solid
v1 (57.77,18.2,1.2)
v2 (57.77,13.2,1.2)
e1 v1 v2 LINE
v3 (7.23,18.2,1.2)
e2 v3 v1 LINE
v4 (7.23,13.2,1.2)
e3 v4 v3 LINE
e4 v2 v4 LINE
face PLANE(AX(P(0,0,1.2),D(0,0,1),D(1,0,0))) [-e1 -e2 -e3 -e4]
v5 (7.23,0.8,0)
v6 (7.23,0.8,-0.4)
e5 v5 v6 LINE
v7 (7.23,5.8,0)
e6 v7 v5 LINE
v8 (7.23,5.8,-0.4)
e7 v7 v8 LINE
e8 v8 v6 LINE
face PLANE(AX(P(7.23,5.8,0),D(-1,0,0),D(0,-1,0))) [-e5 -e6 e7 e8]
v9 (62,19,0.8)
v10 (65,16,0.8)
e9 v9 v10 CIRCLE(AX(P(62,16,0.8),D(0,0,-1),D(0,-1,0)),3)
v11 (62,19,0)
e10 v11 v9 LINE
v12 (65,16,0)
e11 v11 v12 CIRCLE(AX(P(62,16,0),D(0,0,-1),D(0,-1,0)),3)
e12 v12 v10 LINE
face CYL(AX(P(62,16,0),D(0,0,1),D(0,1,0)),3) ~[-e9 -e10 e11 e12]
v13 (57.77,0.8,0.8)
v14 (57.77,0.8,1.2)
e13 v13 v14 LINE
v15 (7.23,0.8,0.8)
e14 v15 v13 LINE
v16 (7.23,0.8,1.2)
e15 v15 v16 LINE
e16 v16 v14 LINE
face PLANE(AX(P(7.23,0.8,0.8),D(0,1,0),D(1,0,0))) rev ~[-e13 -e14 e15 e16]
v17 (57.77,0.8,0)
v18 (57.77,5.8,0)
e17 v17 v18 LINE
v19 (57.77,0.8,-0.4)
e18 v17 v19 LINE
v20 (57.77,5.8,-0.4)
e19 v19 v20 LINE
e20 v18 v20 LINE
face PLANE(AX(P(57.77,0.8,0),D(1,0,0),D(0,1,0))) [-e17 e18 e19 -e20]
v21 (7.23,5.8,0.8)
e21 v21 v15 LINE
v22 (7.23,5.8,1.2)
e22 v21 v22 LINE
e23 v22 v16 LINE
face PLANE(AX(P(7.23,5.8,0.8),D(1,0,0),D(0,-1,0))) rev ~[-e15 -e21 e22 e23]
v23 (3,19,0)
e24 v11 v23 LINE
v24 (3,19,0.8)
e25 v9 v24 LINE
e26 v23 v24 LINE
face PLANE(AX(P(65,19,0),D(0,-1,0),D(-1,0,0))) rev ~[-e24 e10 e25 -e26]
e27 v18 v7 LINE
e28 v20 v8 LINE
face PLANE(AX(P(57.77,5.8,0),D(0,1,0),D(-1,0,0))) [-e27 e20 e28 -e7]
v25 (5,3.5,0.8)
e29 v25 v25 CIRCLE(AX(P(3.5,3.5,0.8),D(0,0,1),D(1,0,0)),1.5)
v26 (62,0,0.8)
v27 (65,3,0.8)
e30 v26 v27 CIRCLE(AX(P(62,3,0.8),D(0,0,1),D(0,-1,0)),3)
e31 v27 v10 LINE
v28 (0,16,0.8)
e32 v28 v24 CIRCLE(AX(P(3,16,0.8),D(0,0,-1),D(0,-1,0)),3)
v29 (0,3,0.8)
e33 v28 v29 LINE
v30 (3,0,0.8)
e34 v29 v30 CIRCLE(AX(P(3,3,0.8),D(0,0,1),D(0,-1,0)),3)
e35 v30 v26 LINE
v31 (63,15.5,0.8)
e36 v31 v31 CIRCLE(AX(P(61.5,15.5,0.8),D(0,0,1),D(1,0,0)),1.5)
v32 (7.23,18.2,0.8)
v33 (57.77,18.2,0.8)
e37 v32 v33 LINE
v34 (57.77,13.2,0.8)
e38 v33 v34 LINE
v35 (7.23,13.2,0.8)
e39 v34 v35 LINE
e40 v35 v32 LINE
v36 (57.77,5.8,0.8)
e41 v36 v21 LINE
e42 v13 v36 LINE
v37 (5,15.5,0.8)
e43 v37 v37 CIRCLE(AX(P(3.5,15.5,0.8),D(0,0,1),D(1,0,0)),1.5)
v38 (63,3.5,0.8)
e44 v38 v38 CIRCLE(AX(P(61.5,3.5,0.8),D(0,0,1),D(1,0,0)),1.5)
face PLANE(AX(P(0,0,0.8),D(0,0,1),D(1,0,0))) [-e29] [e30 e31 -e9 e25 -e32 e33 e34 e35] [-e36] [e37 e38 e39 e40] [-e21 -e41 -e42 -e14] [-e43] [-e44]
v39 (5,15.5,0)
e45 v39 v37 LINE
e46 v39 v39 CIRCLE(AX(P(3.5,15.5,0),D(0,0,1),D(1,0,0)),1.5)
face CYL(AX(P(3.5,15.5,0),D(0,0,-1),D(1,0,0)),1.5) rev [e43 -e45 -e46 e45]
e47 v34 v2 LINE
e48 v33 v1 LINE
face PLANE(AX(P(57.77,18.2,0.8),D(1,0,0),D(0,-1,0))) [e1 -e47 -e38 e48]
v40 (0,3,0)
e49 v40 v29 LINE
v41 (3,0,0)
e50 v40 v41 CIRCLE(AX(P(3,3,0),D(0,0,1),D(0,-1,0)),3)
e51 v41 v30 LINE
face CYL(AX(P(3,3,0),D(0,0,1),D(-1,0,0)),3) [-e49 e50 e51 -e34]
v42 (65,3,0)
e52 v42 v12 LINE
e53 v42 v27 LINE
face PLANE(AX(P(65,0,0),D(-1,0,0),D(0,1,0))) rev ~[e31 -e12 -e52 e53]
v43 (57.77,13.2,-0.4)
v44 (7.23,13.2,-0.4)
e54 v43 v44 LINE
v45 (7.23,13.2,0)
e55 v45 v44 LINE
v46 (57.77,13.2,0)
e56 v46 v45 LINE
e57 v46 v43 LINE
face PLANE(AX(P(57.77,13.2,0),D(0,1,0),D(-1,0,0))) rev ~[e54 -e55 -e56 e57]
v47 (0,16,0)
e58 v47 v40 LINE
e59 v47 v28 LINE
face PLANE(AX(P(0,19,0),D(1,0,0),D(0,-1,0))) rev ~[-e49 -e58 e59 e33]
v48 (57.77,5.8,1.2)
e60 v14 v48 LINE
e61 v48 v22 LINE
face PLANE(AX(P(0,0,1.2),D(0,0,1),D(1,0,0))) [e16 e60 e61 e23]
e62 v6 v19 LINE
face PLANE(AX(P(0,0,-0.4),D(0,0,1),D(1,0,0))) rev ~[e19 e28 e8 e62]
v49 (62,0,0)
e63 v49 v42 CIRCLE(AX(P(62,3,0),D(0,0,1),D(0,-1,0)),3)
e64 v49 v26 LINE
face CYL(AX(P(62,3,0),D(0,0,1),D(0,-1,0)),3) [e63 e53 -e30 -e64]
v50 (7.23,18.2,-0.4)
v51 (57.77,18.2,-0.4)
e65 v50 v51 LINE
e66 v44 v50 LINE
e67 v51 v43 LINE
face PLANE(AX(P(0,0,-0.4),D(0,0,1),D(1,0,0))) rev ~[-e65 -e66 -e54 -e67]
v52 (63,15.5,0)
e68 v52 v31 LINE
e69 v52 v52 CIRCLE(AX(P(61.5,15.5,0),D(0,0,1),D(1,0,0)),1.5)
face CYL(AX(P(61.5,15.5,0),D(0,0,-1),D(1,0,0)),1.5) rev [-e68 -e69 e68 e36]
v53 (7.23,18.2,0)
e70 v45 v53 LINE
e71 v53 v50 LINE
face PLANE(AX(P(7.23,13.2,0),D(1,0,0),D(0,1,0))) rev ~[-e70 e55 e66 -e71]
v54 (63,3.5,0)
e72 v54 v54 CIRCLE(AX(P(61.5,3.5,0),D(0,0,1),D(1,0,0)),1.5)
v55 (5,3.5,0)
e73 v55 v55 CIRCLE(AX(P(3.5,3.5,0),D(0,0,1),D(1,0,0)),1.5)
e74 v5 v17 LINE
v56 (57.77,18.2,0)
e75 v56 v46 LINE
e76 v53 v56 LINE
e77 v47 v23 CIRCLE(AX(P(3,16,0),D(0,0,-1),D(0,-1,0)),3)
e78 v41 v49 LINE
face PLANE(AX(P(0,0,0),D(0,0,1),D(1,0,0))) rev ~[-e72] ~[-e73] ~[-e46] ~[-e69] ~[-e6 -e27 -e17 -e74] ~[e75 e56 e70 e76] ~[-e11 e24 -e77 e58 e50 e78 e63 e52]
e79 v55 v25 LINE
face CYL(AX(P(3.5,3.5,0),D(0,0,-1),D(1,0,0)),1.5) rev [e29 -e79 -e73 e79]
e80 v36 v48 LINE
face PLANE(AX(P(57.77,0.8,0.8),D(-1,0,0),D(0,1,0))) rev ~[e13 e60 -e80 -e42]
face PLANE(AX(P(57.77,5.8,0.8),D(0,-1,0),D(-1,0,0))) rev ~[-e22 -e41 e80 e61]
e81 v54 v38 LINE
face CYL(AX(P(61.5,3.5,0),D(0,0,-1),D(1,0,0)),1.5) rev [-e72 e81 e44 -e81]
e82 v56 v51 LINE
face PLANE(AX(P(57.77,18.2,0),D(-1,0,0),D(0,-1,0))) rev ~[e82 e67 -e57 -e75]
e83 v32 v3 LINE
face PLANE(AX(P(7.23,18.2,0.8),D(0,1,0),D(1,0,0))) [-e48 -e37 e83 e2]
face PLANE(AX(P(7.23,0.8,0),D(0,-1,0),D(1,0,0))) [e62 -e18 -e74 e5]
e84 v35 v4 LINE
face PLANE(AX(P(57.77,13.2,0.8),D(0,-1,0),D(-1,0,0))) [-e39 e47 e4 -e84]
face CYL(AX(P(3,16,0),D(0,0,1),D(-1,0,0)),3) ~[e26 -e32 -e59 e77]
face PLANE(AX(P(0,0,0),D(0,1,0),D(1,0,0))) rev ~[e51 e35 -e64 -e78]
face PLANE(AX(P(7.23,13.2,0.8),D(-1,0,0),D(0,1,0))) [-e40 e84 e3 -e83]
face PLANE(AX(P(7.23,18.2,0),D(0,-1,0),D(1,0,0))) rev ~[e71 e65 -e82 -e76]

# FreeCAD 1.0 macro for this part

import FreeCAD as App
import Part
import Sketcher

V = App.Vector


def edges_at(feature, points):
    """Names of the edges that pass closest to the given points."""
    edges = feature.Shape.Edges
    near = lambda p: min(range(len(edges)), key=lambda i: edges[i].distToShape(Part.Vertex(*p))[0])
    return sorted({f"Edge{near(p) + 1}" for p in points})


def add_polygon(sketch, points):
    """Adds a closed chain of lines whose ends are joined by coincident constraints."""
    first, n = sketch.GeometryCount, len(points)
    for a, b in zip(points, points[1:] + points[:1]):
        sketch.addGeometry(Part.LineSegment(App.Vector(*a, 0), App.Vector(*b, 0)), False)
    for i in range(n):
        sketch.addConstraint(Sketcher.Constraint("Coincident", first + i, 2, first + (i + 1) % n, 1))

doc = App.newDocument("Part")
params = doc.addObject("Spreadsheet::Sheet", "Params")
for row, (alias, value) in enumerate([
    ("sketch1_diameter", "3 mm"),
    ("sketch1_width", "65 mm"),
    ("sketch1_height", "19 mm"),
    ("pad1_length", "0.8 mm"),
    ("fillet_radius", "3 mm"),
    ("sketch2_height", "5 mm"),
    ("sketch2_width", "50.54 mm"),
    ("pad2_length", "0.4 mm"),
    ("sketch3_height", "5 mm"),
    ("sketch3_width", "50.54 mm"),
    ("pad3_length", "0.4 mm"),
], start=1):
    params.set(f"A{row}", alias)
    params.set(f"B{row}", "=" + value)
    params.setAlias(f"B{row}", alias)

body = doc.addObject("PartDesign::Body", "Body")

# Sketch on XY plane
sketch1 = doc.addObject("Sketcher::SketchObject", "Sketch")
body.addObject(sketch1)
sketch1.AttachmentSupport = (doc.XY_Plane, [""])
sketch1.MapMode = "FlatFace"
add_polygon(sketch1, [(0, 19), (0, 0), (65, 0), (65, 19)])  # lines 0-3
sketch1.addGeometry(Part.Circle(V(3.5, 3.5, 0), V(0, 0, 1), 1.5), False)  # 4
sketch1.addGeometry(Part.Circle(V(61.5, 3.5, 0), V(0, 0, 1), 1.5), False)  # 5
sketch1.addGeometry(Part.Circle(V(3.5, 15.5, 0), V(0, 0, 1), 1.5), False)  # 6
sketch1.addGeometry(Part.Circle(V(61.5, 15.5, 0), V(0, 0, 1), 1.5), False)  # 7
sketch1.addConstraint(Sketcher.Constraint("Vertical", 0))
sketch1.addConstraint(Sketcher.Constraint("Horizontal", 1))
sketch1.addConstraint(Sketcher.Constraint("Vertical", 2))
sketch1.addConstraint(Sketcher.Constraint("Horizontal", 3))
sketch1.addConstraint(Sketcher.Constraint("Coincident", 0, 2, -1, 1))
sketch1.addConstraint(Sketcher.Constraint("Equal", 4, 5))
sketch1.addConstraint(Sketcher.Constraint("Equal", 5, 6))
sketch1.addConstraint(Sketcher.Constraint("Equal", 6, 7))
sketch1.addConstraint(Sketcher.Constraint("Horizontal", 4, 3, 5, 3))
sketch1.addConstraint(Sketcher.Constraint("Horizontal", 6, 3, 7, 3))
sketch1.addConstraint(Sketcher.Constraint("Vertical", 4, 3, 6, 3))
sketch1.addConstraint(Sketcher.Constraint("Vertical", 5, 3, 7, 3))
sketch1.addConstraint(Sketcher.Constraint("Diameter", 4, 3.0))
sketch1.addConstraint(Sketcher.Constraint("DistanceX", 1, 1, 1, 2, 65.0))
sketch1.addConstraint(Sketcher.Constraint("DistanceY", 0, 2, 0, 1, 19.0))
sketch1.addConstraint(Sketcher.Constraint("DistanceX", -1, 1, 4, 3, 3.5))
sketch1.addConstraint(Sketcher.Constraint("DistanceY", -1, 1, 4, 3, 3.5))
sketch1.addConstraint(Sketcher.Constraint("DistanceX", 5, 3, 1, 2, 3.5))
sketch1.addConstraint(Sketcher.Constraint("DistanceY", 7, 3, 2, 2, 3.5))
sketch1.setExpression("Constraints[16]", "Params.sketch1_diameter")
sketch1.setExpression("Constraints[17]", "Params.sketch1_width")
sketch1.setExpression("Constraints[18]", "Params.sketch1_height")
pad1 = doc.addObject("PartDesign::Pad", "Pad")
body.addObject(pad1)
pad1.Profile = sketch1
pad1.setExpression("Length", "Params.pad1_length")
doc.recompute()

fillet = doc.addObject("PartDesign::Fillet", "Fillet")
body.addObject(fillet)
fillet.Base = (pad1, edges_at(pad1, [
    (65, 19, 0.4),
    (0, 0, 0.4),
    (65, 0, 0.4),
    (0, 19, 0.4),
]))
fillet.setExpression("Radius", "Params.fillet_radius")

# Sketch on XY plane
sketch2 = doc.addObject("Sketcher::SketchObject", "Sketch001")
body.addObject(sketch2)
sketch2.AttachmentSupport = (doc.XY_Plane, [""])
sketch2.MapMode = "FlatFace"
sketch2.AttachmentOffset = App.Placement(V(0, 0, 0.8), App.Rotation())
add_polygon(sketch2, [(7, 13), (58, 13), (58, 18), (7, 18)])  # lines 0-3
add_polygon(sketch2, [(7, 6), (7, 1), (58, 1), (58, 6)])  # lines 4-7
sketch2.addConstraint(Sketcher.Constraint("Horizontal", 0))
sketch2.addConstraint(Sketcher.Constraint("Vertical", 1))
sketch2.addConstraint(Sketcher.Constraint("Horizontal", 2))
sketch2.addConstraint(Sketcher.Constraint("Vertical", 3))
sketch2.addConstraint(Sketcher.Constraint("Vertical", 4))
sketch2.addConstraint(Sketcher.Constraint("Horizontal", 5))
sketch2.addConstraint(Sketcher.Constraint("Vertical", 6))
sketch2.addConstraint(Sketcher.Constraint("Horizontal", 7))
sketch2.addConstraint(Sketcher.Constraint("Vertical", 3, 2, 4, 2))
sketch2.addConstraint(Sketcher.Constraint("Vertical", 1, 2, 5, 2))
sketch2.addConstraint(Sketcher.Constraint("Equal", 3, 4))
sketch2.addConstraint(Sketcher.Constraint("DistanceY", 1, 1, 1, 2, 5.0))
sketch2.addConstraint(Sketcher.Constraint("DistanceX", 0, 1, 0, 2, 50.54))
sketch2.addConstraint(Sketcher.Constraint("DistanceY", -1, 1, 4, 2, 0.8))
sketch2.addConstraint(Sketcher.Constraint("DistanceY", -1, 1, 0, 2, 13.2))
sketch2.addConstraint(Sketcher.Constraint("DistanceX", -1, 1, 0, 2, 57.77))
sketch2.setExpression("Constraints[19]", "Params.sketch2_height")
sketch2.setExpression("Constraints[20]", "Params.sketch2_width")
pad2 = doc.addObject("PartDesign::Pad", "Pad001")
body.addObject(pad2)
pad2.Profile = sketch2
pad2.setExpression("Length", "Params.pad2_length")

# Sketch on XY plane
sketch3 = doc.addObject("Sketcher::SketchObject", "Sketch002")
body.addObject(sketch3)
sketch3.AttachmentSupport = (doc.XY_Plane, [""])
sketch3.MapMode = "FlatFace"
add_polygon(sketch3, [(7, 13), (58, 13), (58, 18), (7, 18)])  # lines 0-3
add_polygon(sketch3, [(7, 6), (7, 1), (58, 1), (58, 6)])  # lines 4-7
sketch3.addConstraint(Sketcher.Constraint("Horizontal", 0))
sketch3.addConstraint(Sketcher.Constraint("Vertical", 1))
sketch3.addConstraint(Sketcher.Constraint("Horizontal", 2))
sketch3.addConstraint(Sketcher.Constraint("Vertical", 3))
sketch3.addConstraint(Sketcher.Constraint("Vertical", 4))
sketch3.addConstraint(Sketcher.Constraint("Horizontal", 5))
sketch3.addConstraint(Sketcher.Constraint("Vertical", 6))
sketch3.addConstraint(Sketcher.Constraint("Horizontal", 7))
sketch3.addConstraint(Sketcher.Constraint("Vertical", 3, 2, 4, 2))
sketch3.addConstraint(Sketcher.Constraint("Vertical", 1, 2, 5, 2))
sketch3.addConstraint(Sketcher.Constraint("Equal", 3, 4))
sketch3.addConstraint(Sketcher.Constraint("DistanceY", 1, 1, 1, 2, 5.0))
sketch3.addConstraint(Sketcher.Constraint("DistanceX", 0, 1, 0, 2, 50.54))
sketch3.addConstraint(Sketcher.Constraint("DistanceY", -1, 1, 4, 2, 0.8))
sketch3.addConstraint(Sketcher.Constraint("DistanceY", -1, 1, 0, 2, 13.2))
sketch3.addConstraint(Sketcher.Constraint("DistanceX", -1, 1, 0, 2, 57.77))
sketch3.setExpression("Constraints[19]", "Params.sketch3_height")
sketch3.setExpression("Constraints[20]", "Params.sketch3_width")
pad3 = doc.addObject("PartDesign::Pad", "Pad002")
body.addObject(pad3)
pad3.Profile = sketch3
pad3.setExpression("Length", "Params.pad3_length")
pad3.Reversed = True

doc.recompute()
